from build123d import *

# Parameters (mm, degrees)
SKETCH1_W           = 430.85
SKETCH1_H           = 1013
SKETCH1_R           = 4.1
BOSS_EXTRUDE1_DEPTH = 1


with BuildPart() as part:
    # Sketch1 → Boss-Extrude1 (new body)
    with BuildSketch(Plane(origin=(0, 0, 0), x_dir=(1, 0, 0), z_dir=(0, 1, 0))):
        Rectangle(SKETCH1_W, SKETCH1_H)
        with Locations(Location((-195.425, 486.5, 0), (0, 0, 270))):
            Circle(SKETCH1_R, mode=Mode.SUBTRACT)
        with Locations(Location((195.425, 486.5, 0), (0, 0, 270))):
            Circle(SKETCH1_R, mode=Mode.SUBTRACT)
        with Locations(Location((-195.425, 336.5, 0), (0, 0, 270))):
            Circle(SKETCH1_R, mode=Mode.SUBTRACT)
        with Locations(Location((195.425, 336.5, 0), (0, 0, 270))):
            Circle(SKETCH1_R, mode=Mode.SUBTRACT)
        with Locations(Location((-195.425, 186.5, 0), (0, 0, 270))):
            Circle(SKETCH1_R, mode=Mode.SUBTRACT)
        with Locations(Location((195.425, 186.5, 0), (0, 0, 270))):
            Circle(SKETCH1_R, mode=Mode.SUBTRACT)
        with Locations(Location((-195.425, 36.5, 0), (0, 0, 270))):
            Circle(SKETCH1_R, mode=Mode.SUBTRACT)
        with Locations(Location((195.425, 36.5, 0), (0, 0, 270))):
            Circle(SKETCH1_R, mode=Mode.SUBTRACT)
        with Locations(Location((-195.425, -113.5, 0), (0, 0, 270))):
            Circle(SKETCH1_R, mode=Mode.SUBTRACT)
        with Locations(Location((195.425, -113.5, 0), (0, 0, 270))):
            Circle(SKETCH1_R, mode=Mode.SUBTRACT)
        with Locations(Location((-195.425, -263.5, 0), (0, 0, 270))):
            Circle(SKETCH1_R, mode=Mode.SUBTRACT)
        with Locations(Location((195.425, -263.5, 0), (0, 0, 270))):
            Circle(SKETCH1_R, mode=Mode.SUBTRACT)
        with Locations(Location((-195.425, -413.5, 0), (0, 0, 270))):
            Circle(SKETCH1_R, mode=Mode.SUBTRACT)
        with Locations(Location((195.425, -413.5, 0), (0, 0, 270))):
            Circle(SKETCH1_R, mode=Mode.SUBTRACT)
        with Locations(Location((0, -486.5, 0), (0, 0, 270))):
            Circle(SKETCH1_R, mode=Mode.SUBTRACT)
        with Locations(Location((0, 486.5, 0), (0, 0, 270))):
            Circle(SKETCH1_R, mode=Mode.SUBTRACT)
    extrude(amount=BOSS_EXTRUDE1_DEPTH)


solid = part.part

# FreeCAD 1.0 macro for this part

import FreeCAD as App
import Part
import Sketcher


def add_polygon(sketch, points):
    """Adds a closed chain of lines whose ends are joined by coincident constraints."""
    first, n = sketch.GeometryCount, len(points)
    for a, b in zip(points, points[1:] + points[:1]):
        sketch.addGeometry(Part.LineSegment(App.Vector(*a, 0), App.Vector(*b, 0)), False)
    for i in range(n):
        sketch.addConstraint(Sketcher.Constraint("Coincident", first + i, 2, first + (i + 1) % n, 1))

doc = App.newDocument("Part")
body = doc.addObject("PartDesign::Body", "Body")

sketch1 = doc.addObject("Sketcher::SketchObject", "Sketch")
body.addObject(sketch1)
sketch1.AttachmentSupport = (doc.XZ_Plane, [""])
sketch1.MapMode = "FlatFace"
add_polygon(sketch1, [(-215.425, -506.5), (-215.425, 506.5), (215.425, 506.5), (215.425, -506.5)])
sketch1.addGeometry(Part.Circle(App.Vector(-195.425, 413.5, 0), App.Vector(0, 0, 1), 4.1), False)
sketch1.addGeometry(Part.Circle(App.Vector(-195.425, 263.5, 0), App.Vector(0, 0, 1), 4.1), False)
sketch1.addGeometry(Part.Circle(App.Vector(-195.425, 113.5, 0), App.Vector(0, 0, 1), 4.1), False)
sketch1.addGeometry(Part.Circle(App.Vector(0, 486.5, 0), App.Vector(0, 0, 1), 4.1), False)
sketch1.addGeometry(Part.Circle(App.Vector(195.425, 413.5, 0), App.Vector(0, 0, 1), 4.1), False)
sketch1.addGeometry(Part.Circle(App.Vector(195.425, 263.5, 0), App.Vector(0, 0, 1), 4.1), False)
sketch1.addGeometry(Part.Circle(App.Vector(195.425, 113.5, 0), App.Vector(0, 0, 1), 4.1), False)
sketch1.addGeometry(Part.Circle(App.Vector(-195.425, -36.5, 0), App.Vector(0, 0, 1), 4.1), False)
sketch1.addGeometry(Part.Circle(App.Vector(-195.425, -186.5, 0), App.Vector(0, 0, 1), 4.1), False)
sketch1.addGeometry(Part.Circle(App.Vector(-195.425, -336.5, 0), App.Vector(0, 0, 1), 4.1), False)
sketch1.addGeometry(Part.Circle(App.Vector(-195.425, -486.5, 0), App.Vector(0, 0, 1), 4.1), False)
sketch1.addGeometry(Part.Circle(App.Vector(195.425, -36.5, 0), App.Vector(0, 0, 1), 4.1), False)
sketch1.addGeometry(Part.Circle(App.Vector(195.425, -186.5, 0), App.Vector(0, 0, 1), 4.1), False)
sketch1.addGeometry(Part.Circle(App.Vector(0, -486.5, 0), App.Vector(0, 0, 1), 4.1), False)
sketch1.addGeometry(Part.Circle(App.Vector(195.425, -336.5, 0), App.Vector(0, 0, 1), 4.1), False)
sketch1.addGeometry(Part.Circle(App.Vector(195.425, -486.5, 0), App.Vector(0, 0, 1), 4.1), False)
sketch1.addConstraint([
    Sketcher.Constraint("Vertical", 0),
    Sketcher.Constraint("Horizontal", 1),
    Sketcher.Constraint("Vertical", 2),
    Sketcher.Constraint("Horizontal", 3),
    Sketcher.Constraint("Equal", 4, 5),
    Sketcher.Constraint("Equal", 5, 6),
    Sketcher.Constraint("Equal", 6, 7),
    Sketcher.Constraint("Equal", 7, 8),
    Sketcher.Constraint("Equal", 8, 9),
    Sketcher.Constraint("Equal", 9, 10),
    Sketcher.Constraint("Equal", 10, 11),
    Sketcher.Constraint("Equal", 11, 12),
    Sketcher.Constraint("Equal", 12, 13),
    Sketcher.Constraint("Equal", 13, 14),
    Sketcher.Constraint("Equal", 14, 15),
    Sketcher.Constraint("Equal", 15, 16),
    Sketcher.Constraint("Equal", 16, 17),
    Sketcher.Constraint("Equal", 17, 18),
    Sketcher.Constraint("Equal", 18, 19),
    Sketcher.Constraint("Symmetric", 7, 3, 17, 3, -1, 1),
    Sketcher.Constraint("Symmetric", 0, 2, 2, 2, -1, 1),
    Sketcher.Constraint("Symmetric", 4, 3, 8, 3, -2),
    Sketcher.Constraint("Symmetric", 5, 3, 9, 3, -2),
    Sketcher.Constraint("Symmetric", 6, 3, 10, 3, -2),
    Sketcher.Constraint("Symmetric", 11, 3, 15, 3, -2),
    Sketcher.Constraint("Symmetric", 12, 3, 16, 3, -2),
    Sketcher.Constraint("Symmetric", 13, 3, 18, 3, -2),
    Sketcher.Constraint("Symmetric", 14, 3, 19, 3, -2),
    Sketcher.Constraint("PointOnObject", 7, 3, -2),
    Sketcher.Constraint("Horizontal", 14, 3, 17, 3),
    Sketcher.Constraint("Vertical", 4, 3, 5, 3),
    Sketcher.Constraint("Vertical", 5, 3, 6, 3),
    Sketcher.Constraint("Vertical", 6, 3, 11, 3),
    Sketcher.Constraint("Vertical", 11, 3, 12, 3),
    Sketcher.Constraint("Vertical", 12, 3, 13, 3),
    Sketcher.Constraint("Vertical", 13, 3, 14, 3),
    Sketcher.Constraint("Diameter", 4, 8.2),
    Sketcher.Constraint("DistanceY", 0, 1, 0, 2, 1013.0),
    Sketcher.Constraint("DistanceY", 5, 3, 4, 3, 150.0),
    Sketcher.Constraint("DistanceY", 6, 3, 5, 3, 150.0),
    Sketcher.Constraint("DistanceY", 4, 3, 7, 3, 73.0),
    Sketcher.Constraint("DistanceY", 11, 3, 6, 3, 150.0),
    Sketcher.Constraint("DistanceY", 12, 3, 11, 3, 150.0),
    Sketcher.Constraint("DistanceY", 13, 3, 12, 3, 150.0),
    Sketcher.Constraint("DistanceY", 14, 3, 13, 3, 150.0),
    Sketcher.Constraint("DistanceX", 0, 2, 4, 3, 20.0),
    Sketcher.Constraint("DistanceX", 1, 1, 1, 2, 430.85),
])
pad1 = doc.addObject("PartDesign::Pad", "Pad")
body.addObject(pad1)
pad1.Profile = sketch1
pad1.Length = 1
pad1.Reversed = True

doc.recompute()
